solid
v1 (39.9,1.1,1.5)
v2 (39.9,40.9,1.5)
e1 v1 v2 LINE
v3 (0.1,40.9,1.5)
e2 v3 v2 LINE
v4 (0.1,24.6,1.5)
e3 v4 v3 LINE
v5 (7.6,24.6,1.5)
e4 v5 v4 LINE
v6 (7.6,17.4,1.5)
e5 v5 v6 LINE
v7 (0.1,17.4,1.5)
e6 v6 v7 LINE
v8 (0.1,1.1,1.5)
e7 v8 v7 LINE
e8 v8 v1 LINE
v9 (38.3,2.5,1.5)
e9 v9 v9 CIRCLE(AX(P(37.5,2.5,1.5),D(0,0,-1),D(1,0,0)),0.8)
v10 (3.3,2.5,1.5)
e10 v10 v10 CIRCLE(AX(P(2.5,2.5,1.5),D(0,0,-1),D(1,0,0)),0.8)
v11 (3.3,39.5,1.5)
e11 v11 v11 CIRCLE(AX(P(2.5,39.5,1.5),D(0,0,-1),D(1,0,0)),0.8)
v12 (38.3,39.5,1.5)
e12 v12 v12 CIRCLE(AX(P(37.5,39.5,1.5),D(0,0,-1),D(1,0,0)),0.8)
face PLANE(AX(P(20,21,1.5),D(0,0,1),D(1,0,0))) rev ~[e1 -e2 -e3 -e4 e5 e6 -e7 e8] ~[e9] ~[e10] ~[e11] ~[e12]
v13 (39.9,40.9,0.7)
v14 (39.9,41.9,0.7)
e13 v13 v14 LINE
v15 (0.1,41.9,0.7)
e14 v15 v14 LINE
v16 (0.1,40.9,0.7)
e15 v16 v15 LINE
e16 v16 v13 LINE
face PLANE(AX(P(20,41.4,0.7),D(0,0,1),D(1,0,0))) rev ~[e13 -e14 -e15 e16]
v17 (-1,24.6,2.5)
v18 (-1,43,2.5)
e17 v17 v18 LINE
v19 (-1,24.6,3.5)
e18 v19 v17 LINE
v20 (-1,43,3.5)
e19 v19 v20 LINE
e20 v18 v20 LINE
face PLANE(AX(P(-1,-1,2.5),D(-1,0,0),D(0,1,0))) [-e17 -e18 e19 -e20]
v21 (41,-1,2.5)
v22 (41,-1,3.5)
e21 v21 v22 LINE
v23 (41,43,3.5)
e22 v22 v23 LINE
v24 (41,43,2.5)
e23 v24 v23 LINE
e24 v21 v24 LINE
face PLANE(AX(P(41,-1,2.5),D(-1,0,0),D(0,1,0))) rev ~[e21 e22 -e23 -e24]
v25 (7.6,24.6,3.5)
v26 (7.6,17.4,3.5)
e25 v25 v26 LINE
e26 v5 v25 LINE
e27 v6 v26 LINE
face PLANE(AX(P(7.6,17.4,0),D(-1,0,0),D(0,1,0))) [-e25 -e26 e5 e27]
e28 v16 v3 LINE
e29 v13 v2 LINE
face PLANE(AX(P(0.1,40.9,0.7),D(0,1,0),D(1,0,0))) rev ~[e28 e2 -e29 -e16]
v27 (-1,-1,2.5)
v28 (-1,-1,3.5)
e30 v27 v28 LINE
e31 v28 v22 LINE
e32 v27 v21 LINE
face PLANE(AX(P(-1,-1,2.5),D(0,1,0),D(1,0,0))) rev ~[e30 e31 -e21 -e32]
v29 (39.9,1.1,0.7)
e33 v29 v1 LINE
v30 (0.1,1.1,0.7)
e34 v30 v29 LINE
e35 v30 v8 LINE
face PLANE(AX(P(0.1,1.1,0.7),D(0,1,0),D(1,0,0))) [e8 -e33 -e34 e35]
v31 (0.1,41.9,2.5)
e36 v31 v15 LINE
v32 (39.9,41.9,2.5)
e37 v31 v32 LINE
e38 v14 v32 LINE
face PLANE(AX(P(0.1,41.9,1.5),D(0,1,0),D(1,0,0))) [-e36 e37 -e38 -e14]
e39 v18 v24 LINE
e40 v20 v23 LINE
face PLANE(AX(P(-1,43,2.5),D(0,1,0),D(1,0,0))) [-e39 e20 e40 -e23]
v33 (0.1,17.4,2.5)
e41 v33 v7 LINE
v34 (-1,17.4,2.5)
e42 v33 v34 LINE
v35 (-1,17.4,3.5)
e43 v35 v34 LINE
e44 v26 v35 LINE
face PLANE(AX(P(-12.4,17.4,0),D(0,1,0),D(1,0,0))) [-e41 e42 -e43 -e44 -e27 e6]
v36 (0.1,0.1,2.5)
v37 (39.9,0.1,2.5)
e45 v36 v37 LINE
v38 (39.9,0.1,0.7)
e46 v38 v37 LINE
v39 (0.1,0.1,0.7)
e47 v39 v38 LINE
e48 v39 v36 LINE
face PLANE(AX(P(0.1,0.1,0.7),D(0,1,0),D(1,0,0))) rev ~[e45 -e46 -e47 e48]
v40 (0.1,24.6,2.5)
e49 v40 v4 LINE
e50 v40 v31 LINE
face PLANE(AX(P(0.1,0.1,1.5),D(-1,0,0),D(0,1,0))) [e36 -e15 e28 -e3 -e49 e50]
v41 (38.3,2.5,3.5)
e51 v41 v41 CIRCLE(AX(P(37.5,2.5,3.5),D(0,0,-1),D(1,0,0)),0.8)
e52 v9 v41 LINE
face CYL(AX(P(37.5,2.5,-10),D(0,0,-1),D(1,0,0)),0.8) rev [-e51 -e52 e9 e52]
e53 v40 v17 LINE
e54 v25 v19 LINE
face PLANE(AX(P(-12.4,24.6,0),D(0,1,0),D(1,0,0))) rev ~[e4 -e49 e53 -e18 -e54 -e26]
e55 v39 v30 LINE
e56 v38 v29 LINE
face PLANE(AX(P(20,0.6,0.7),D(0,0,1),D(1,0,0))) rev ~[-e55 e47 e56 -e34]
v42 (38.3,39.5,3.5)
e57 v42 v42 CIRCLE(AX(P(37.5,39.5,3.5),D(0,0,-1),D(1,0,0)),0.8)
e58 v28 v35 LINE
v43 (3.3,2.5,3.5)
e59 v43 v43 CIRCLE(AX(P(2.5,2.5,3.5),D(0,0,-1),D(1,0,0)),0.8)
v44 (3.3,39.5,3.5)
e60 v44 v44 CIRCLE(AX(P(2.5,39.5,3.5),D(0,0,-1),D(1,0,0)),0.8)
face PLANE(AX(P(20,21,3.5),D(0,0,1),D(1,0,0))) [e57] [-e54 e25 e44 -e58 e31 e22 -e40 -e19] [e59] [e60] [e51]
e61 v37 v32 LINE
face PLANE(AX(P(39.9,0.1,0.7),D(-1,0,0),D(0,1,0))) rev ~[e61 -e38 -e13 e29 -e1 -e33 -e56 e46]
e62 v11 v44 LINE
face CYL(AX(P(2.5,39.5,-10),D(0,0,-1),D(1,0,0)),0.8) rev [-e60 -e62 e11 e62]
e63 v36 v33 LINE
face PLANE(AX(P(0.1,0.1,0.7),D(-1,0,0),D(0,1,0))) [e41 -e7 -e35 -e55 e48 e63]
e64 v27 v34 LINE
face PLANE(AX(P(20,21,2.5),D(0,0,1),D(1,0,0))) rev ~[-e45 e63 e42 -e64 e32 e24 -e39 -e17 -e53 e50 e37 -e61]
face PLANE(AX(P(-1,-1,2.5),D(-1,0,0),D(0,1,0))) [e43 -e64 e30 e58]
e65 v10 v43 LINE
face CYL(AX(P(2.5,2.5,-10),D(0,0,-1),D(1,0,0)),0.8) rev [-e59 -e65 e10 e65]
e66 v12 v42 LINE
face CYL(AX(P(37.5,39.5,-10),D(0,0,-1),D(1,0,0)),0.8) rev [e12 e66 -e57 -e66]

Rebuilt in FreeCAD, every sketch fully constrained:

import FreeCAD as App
import Part
import Sketcher
from FreeCAD import Vector
Q = App.Units.Quantity


def add_polygon(sketch, points):
    """Adds a closed chain of lines whose ends are joined by coincident constraints."""
    first, n = sketch.GeometryCount, len(points)
    for a, b in zip(points, points[1:] + points[:1]):
        sketch.addGeometry(Part.LineSegment(App.Vector(*a, 0), App.Vector(*b, 0)), False)
    for i in range(n):
        sketch.addConstraint(Sketcher.Constraint("Coincident", first + i, 2, first + (i + 1) % n, 1))

doc = App.newDocument("Part")
params = doc.addObject("Spreadsheet::Sheet", "Params")
for row, (alias, value) in enumerate([
    ("sketch1_diameter", "1.6 mm"),
    ("pad1_length", "20 mm"),
    ("sketch2_diameter", "1.6 mm"),
    ("pad2_length", "20 mm"),
    ("sketch3_diameter", "1.6 mm"),
    ("pad3_length", "20 mm"),
    ("sketch4_diameter", "1.6 mm"),
    ("pad4_length", "20 mm"),
    ("sketch5_height", "1 mm"),
    ("sketch5_width", "39.8 mm"),
    ("pad5_length", "0.8 mm"),
    ("sketch6_height", "1 mm"),
    ("sketch6_width", "39.8 mm"),
    ("pad6_length", "0.8 mm"),
    ("sketch7_width", "20 mm"),
    ("sketch7_height", "7.2 mm"),
    ("pad7_length", "10 mm"),
    ("sketch8_width", "42 mm"),
    ("sketch8_height", "44 mm"),
    ("pad8_length", "1 mm"),
    ("sketch9_width", "39.8 mm"),
    ("sketch9_height", "41.8 mm"),
    ("pad9_length", "1 mm"),
], start=1):
    params.set(f"A{row}", alias)
    params.set(f"B{row}", "=" + value)
    params.setAlias(f"B{row}", alias)

body = doc.addObject("PartDesign::Body", "Body")

# Sketch on XY plane
sketch1 = body.newObject("Sketcher::SketchObject", "Sketch")
sketch1.AttachmentSupport = (doc.getObject("XY_Plane"), [""])
sketch1.MapMode = "FlatFace"
sketch1.AttachmentOffset = App.Placement(Vector(0, 0, -10), App.Rotation())
sketch1.addGeometry(Part.Circle(Vector(37.5, 2.5, 0), Vector(0, 0, 1), 0.8), False)
sketch1.addConstraint([
    Sketcher.Constraint("Diameter", 0, Q("1.6 mm")),
    Sketcher.Constraint("DistanceX", -1, 1, 0, 3, Q("37.5 mm")),
    Sketcher.Constraint("DistanceY", -1, 1, 0, 3, Q("2.5 mm")),
])
sketch1.setExpression("Constraints[0]", "Params.sketch1_diameter")
pad1 = body.newObject("PartDesign::Pad", "Pad")
pad1.Profile = sketch1
pad1.setExpression("Length", "Params.pad1_length")
body2 = doc.addObject("PartDesign::Body", "Body001")

# Sketch on XY plane
sketch2 = body2.newObject("Sketcher::SketchObject", "Sketch001")
sketch2.AttachmentSupport = (doc.getObject("XY_Plane001"), [""])
sketch2.MapMode = "FlatFace"
sketch2.AttachmentOffset = App.Placement(Vector(0, 0, -10), App.Rotation())
sketch2.addGeometry(Part.Circle(Vector(2.5, 2.5, 0), Vector(0, 0, 1), 0.8), False)
sketch2.addConstraint([
    Sketcher.Constraint("Diameter", 0, Q("1.6 mm")),
    Sketcher.Constraint("DistanceX", -1, 1, 0, 3, Q("2.5 mm")),
    Sketcher.Constraint("DistanceY", -1, 1, 0, 3, Q("2.5 mm")),
])
sketch2.setExpression("Constraints[0]", "Params.sketch2_diameter")
pad2 = body2.newObject("PartDesign::Pad", "Pad001")
pad2.Profile = sketch2
pad2.setExpression("Length", "Params.pad2_length")
body3 = doc.addObject("PartDesign::Body", "Body002")

# Sketch on XY plane
sketch3 = body3.newObject("Sketcher::SketchObject", "Sketch002")
sketch3.AttachmentSupport = (doc.getObject("XY_Plane002"), [""])
sketch3.MapMode = "FlatFace"
sketch3.AttachmentOffset = App.Placement(Vector(0, 0, -10), App.Rotation())
sketch3.addGeometry(Part.Circle(Vector(37.5, 39.5, 0), Vector(0, 0, 1), 0.8), False)
sketch3.addConstraint([
    Sketcher.Constraint("Diameter", 0, Q("1.6 mm")),
    Sketcher.Constraint("DistanceX", -1, 1, 0, 3, Q("37.5 mm")),
    Sketcher.Constraint("DistanceY", -1, 1, 0, 3, Q("39.5 mm")),
])
sketch3.setExpression("Constraints[0]", "Params.sketch3_diameter")
pad3 = body3.newObject("PartDesign::Pad", "Pad002")
pad3.Profile = sketch3
pad3.setExpression("Length", "Params.pad3_length")
body4 = doc.addObject("PartDesign::Body", "Body003")
body4.AllowCompound = True

# Sketch on XY plane
sketch4 = body4.newObject("Sketcher::SketchObject", "Sketch003")
sketch4.AttachmentSupport = (doc.getObject("XY_Plane003"), [""])
sketch4.MapMode = "FlatFace"
sketch4.AttachmentOffset = App.Placement(Vector(0, 0, -10), App.Rotation())
sketch4.addGeometry(Part.Circle(Vector(2.5, 39.5, 0), Vector(0, 0, 1), 0.8), False)
sketch4.addConstraint([
    Sketcher.Constraint("Diameter", 0, Q("1.6 mm")),
    Sketcher.Constraint("DistanceX", -1, 1, 0, 3, Q("2.5 mm")),
    Sketcher.Constraint("DistanceY", -1, 1, 0, 3, Q("39.5 mm")),
])
sketch4.setExpression("Constraints[0]", "Params.sketch4_diameter")
pad4 = body4.newObject("PartDesign::Pad", "Pad003")
pad4.Profile = sketch4
pad4.setExpression("Length", "Params.pad4_length")
doc.recompute()

boolean = body4.newObject("PartDesign::Boolean", "Boolean")
boolean.Type = "Fuse"
boolean.addObjects([body])
doc.recompute()

boolean2 = body4.newObject("PartDesign::Boolean", "Boolean001")
boolean2.Type = "Fuse"
boolean2.addObjects([body2])
doc.recompute()

boolean3 = body4.newObject("PartDesign::Boolean", "Boolean002")
boolean3.Type = "Fuse"
boolean3.addObjects([body3])
body5 = doc.addObject("PartDesign::Body", "Body004")

# Sketch on XY plane
sketch5 = body5.newObject("Sketcher::SketchObject", "Sketch004")
sketch5.AttachmentSupport = (doc.getObject("XY_Plane004"), [""])
sketch5.MapMode = "FlatFace"
sketch5.AttachmentOffset = App.Placement(Vector(0, 0, 0.7), App.Rotation())
add_polygon(sketch5, [(0.1, 1.1), (0.1, 0.1), (39.9, 0.1), (39.9, 1.1)])  # lines 0-3
sketch5.addConstraint([
    Sketcher.Constraint("Vertical", 0),
    Sketcher.Constraint("Horizontal", 1),
    Sketcher.Constraint("Vertical", 2),
    Sketcher.Constraint("Horizontal", 3),
    Sketcher.Constraint("DistanceY", 0, 2, 0, 1, Q("1 mm")),
    Sketcher.Constraint("DistanceX", 1, 1, 1, 2, Q("39.8 mm")),
    Sketcher.Constraint("DistanceX", -1, 1, 0, 2, Q("0.1 mm")),
    Sketcher.Constraint("DistanceY", -1, 1, 0, 2, Q("0.1 mm")),
])
sketch5.setExpression("Constraints[8]", "Params.sketch5_height")
sketch5.setExpression("Constraints[9]", "Params.sketch5_width")
pad5 = body5.newObject("PartDesign::Pad", "Pad004")
pad5.Profile = sketch5
pad5.setExpression("Length", "Params.pad5_length")
body6 = doc.addObject("PartDesign::Body", "Body005")
body6.AllowCompound = True

# Sketch on XY plane
sketch6 = body6.newObject("Sketcher::SketchObject", "Sketch005")
sketch6.AttachmentSupport = (doc.getObject("XY_Plane005"), [""])
sketch6.MapMode = "FlatFace"
sketch6.AttachmentOffset = App.Placement(Vector(0, 0, 0.7), App.Rotation())
add_polygon(sketch6, [(0.1, 41.9), (0.1, 40.9), (39.9, 40.9), (39.9, 41.9)])  # lines 0-3
sketch6.addConstraint([
    Sketcher.Constraint("Vertical", 0),
    Sketcher.Constraint("Horizontal", 1),
    Sketcher.Constraint("Vertical", 2),
    Sketcher.Constraint("Horizontal", 3),
    Sketcher.Constraint("DistanceY", 0, 2, 0, 1, Q("1 mm")),
    Sketcher.Constraint("DistanceX", 1, 1, 1, 2, Q("39.8 mm")),
    Sketcher.Constraint("DistanceX", -1, 1, 0, 2, Q("0.1 mm")),
    Sketcher.Constraint("DistanceY", -1, 1, 0, 2, Q("40.9 mm")),
])
sketch6.setExpression("Constraints[8]", "Params.sketch6_height")
sketch6.setExpression("Constraints[9]", "Params.sketch6_width")
pad6 = body6.newObject("PartDesign::Pad", "Pad005")
pad6.Profile = sketch6
pad6.setExpression("Length", "Params.pad6_length")
doc.recompute()

boolean4 = body6.newObject("PartDesign::Boolean", "Boolean003")
boolean4.Type = "Fuse"
boolean4.addObjects([body5])
body7 = doc.addObject("PartDesign::Body", "Body006")

# Sketch on XY plane
sketch7 = body7.newObject("Sketcher::SketchObject", "Sketch006")
sketch7.AttachmentSupport = (doc.getObject("XY_Plane006"), [""])
sketch7.MapMode = "FlatFace"
add_polygon(sketch7, [(-12, 25), (-12, 17), (8, 17), (8, 25)])  # lines 0-3
sketch7.addConstraint([
    Sketcher.Constraint("Vertical", 0),
    Sketcher.Constraint("Horizontal", 1),
    Sketcher.Constraint("Vertical", 2),
    Sketcher.Constraint("Horizontal", 3),
    Sketcher.Constraint("DistanceX", 1, 1, 1, 2, Q("20 mm")),
    Sketcher.Constraint("DistanceY", 0, 2, 0, 1, Q("7.2 mm")),
    Sketcher.Constraint("DistanceX", 0, 2, -1, 1, Q("12.4 mm")),
    Sketcher.Constraint("DistanceY", -1, 1, 0, 2, Q("17.4 mm")),
])
sketch7.setExpression("Constraints[8]", "Params.sketch7_width")
sketch7.setExpression("Constraints[9]", "Params.sketch7_height")
pad7 = body7.newObject("PartDesign::Pad", "Pad006")
pad7.Profile = sketch7
pad7.setExpression("Length", "Params.pad7_length")
body8 = doc.addObject("PartDesign::Body", "Body007")

# Sketch on XY plane
sketch8 = body8.newObject("Sketcher::SketchObject", "Sketch007")
sketch8.AttachmentSupport = (doc.getObject("XY_Plane007"), [""])
sketch8.MapMode = "FlatFace"
sketch8.AttachmentOffset = App.Placement(Vector(0, 0, 2.5), App.Rotation())
add_polygon(sketch8, [(-1, 43), (-1, -1), (41, -1), (41, 43)])  # lines 0-3
sketch8.addConstraint([
    Sketcher.Constraint("Vertical", 0),
    Sketcher.Constraint("Horizontal", 1),
    Sketcher.Constraint("Vertical", 2),
    Sketcher.Constraint("Horizontal", 3),
    Sketcher.Constraint("DistanceX", 1, 1, 1, 2, Q("42 mm")),
    Sketcher.Constraint("DistanceY", 0, 2, 0, 1, Q("44 mm")),
    Sketcher.Constraint("DistanceX", 0, 2, -1, 1, Q("1 mm")),
    Sketcher.Constraint("DistanceY", 0, 2, -1, 1, Q("1 mm")),
])
sketch8.setExpression("Constraints[8]", "Params.sketch8_width")
sketch8.setExpression("Constraints[9]", "Params.sketch8_height")
pad8 = body8.newObject("PartDesign::Pad", "Pad007")
pad8.Profile = sketch8
pad8.setExpression("Length", "Params.pad8_length")
body9 = doc.addObject("PartDesign::Body", "Body008")

# Sketch on XY plane
sketch9 = body9.newObject("Sketcher::SketchObject", "Sketch008")
sketch9.AttachmentSupport = (doc.getObject("XY_Plane008"), [""])
sketch9.MapMode = "FlatFace"
sketch9.AttachmentOffset = App.Placement(Vector(0, 0, 1.5), App.Rotation())
add_polygon(sketch9, [(0, 42), (0, 0), (40, 0), (40, 42)])  # lines 0-3
sketch9.addConstraint([
    Sketcher.Constraint("Vertical", 0),
    Sketcher.Constraint("Horizontal", 1),
    Sketcher.Constraint("Vertical", 2),
    Sketcher.Constraint("Horizontal", 3),
    Sketcher.Constraint("DistanceX", 1, 1, 1, 2, Q("39.8 mm")),
    Sketcher.Constraint("DistanceY", 0, 2, 0, 1, Q("41.8 mm")),
    Sketcher.Constraint("DistanceX", -1, 1, 0, 2, Q("0.1 mm")),
    Sketcher.Constraint("DistanceY", -1, 1, 0, 2, Q("0.1 mm")),
])
sketch9.setExpression("Constraints[8]", "Params.sketch9_width")
sketch9.setExpression("Constraints[9]", "Params.sketch9_height")
pad9 = body9.newObject("PartDesign::Pad", "Pad008")
pad9.Profile = sketch9
pad9.setExpression("Length", "Params.pad9_length")
doc.recompute()

boolean5 = body9.newObject("PartDesign::Boolean", "Boolean004")
boolean5.Type = "Fuse"
boolean5.addObjects([body8])
doc.recompute()

boolean6 = body9.newObject("PartDesign::Boolean", "Boolean005")
boolean6.Type = "Cut"
boolean6.addObjects([body7])
doc.recompute()

boolean7 = body9.newObject("PartDesign::Boolean", "Boolean006")
boolean7.Type = "Fuse"
boolean7.addObjects([body6])
doc.recompute()

boolean8 = body9.newObject("PartDesign::Boolean", "Boolean007")
boolean8.Type = "Cut"
boolean8.addObjects([body4])

doc.recompute()
